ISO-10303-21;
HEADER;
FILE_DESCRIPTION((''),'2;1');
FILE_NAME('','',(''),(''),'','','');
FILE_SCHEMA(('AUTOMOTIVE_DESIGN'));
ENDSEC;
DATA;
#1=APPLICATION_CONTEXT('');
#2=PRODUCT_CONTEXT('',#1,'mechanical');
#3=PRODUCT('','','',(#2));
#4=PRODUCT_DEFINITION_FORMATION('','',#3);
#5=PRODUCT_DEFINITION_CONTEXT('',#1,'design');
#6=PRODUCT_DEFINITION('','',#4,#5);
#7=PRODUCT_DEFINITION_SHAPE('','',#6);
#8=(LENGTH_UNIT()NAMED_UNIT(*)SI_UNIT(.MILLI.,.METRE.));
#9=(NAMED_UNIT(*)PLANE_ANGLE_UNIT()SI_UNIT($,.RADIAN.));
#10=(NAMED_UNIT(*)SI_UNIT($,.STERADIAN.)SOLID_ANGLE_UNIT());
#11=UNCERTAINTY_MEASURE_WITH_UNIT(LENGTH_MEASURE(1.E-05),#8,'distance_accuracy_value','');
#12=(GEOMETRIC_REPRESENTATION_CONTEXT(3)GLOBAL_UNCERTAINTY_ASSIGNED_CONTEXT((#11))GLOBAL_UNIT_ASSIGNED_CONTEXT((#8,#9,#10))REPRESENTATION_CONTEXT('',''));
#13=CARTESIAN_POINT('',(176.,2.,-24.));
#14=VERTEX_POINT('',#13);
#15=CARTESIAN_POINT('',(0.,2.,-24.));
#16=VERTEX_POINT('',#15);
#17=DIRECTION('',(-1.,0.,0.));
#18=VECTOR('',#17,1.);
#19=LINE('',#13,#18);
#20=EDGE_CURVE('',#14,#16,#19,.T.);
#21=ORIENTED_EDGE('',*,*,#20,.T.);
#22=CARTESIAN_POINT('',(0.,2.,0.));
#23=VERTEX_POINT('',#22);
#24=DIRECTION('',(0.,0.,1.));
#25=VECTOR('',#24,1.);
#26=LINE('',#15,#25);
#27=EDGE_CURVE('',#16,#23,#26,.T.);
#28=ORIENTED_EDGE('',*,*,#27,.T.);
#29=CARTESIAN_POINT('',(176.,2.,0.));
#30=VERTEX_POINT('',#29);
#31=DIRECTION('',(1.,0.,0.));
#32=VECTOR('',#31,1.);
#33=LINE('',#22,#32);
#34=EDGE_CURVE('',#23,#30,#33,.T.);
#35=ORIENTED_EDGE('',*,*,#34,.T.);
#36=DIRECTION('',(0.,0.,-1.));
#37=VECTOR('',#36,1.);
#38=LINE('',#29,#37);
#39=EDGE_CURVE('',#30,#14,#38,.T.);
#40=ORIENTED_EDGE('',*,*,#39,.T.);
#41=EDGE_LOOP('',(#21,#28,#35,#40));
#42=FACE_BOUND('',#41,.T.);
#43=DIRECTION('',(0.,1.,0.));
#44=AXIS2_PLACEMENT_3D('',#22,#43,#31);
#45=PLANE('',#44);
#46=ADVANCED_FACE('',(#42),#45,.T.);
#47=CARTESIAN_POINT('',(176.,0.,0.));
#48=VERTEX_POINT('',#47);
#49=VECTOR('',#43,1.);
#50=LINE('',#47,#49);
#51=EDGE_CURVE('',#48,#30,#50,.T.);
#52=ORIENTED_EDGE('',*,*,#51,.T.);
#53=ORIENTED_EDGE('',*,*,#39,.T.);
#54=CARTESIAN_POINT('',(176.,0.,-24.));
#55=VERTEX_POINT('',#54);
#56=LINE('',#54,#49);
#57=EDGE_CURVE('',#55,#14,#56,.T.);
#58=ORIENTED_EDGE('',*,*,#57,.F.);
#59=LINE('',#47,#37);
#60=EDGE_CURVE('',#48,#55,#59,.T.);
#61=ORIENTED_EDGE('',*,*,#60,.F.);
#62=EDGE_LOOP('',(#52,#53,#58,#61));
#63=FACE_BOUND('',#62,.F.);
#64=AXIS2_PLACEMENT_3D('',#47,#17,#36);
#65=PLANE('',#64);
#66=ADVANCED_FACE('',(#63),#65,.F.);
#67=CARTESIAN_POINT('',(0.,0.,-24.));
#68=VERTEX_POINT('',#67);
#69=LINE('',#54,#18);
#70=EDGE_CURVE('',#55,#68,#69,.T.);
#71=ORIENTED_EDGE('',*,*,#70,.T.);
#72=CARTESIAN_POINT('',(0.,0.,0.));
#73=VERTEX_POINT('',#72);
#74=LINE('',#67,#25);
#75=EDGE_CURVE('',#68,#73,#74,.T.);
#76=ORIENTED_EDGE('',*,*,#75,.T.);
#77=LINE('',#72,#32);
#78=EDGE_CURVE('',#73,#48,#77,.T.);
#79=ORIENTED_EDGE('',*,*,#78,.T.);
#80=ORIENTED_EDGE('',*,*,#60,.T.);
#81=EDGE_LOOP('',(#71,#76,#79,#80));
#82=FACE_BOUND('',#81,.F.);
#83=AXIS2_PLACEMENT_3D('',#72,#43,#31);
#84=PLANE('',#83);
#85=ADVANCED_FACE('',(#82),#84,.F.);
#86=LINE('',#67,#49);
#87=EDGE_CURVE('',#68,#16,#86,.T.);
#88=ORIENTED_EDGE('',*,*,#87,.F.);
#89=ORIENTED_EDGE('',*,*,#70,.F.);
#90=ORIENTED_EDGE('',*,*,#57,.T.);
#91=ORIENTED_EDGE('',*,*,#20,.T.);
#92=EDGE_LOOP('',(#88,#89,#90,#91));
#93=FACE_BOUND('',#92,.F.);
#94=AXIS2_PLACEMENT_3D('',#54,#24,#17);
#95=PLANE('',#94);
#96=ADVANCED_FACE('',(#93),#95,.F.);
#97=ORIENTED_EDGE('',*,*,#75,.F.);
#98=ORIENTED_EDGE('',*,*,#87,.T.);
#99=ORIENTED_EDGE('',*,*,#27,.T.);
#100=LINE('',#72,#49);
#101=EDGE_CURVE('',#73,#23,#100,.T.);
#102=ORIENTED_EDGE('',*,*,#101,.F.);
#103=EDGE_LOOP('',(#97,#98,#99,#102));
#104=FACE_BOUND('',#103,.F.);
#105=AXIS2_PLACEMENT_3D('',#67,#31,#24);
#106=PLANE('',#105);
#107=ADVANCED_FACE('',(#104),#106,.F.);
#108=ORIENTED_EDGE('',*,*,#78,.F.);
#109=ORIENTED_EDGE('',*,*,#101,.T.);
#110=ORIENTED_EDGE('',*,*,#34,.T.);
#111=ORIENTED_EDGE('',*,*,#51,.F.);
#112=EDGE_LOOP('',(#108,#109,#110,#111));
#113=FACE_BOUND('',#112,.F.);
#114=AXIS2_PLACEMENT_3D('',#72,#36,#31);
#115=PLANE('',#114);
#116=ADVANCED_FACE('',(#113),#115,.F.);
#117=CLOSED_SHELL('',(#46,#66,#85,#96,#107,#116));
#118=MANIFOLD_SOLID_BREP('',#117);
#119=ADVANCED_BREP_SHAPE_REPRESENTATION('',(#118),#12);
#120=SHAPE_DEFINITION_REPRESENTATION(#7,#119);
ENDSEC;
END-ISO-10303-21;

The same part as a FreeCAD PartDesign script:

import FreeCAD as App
import Part
import Sketcher
from FreeCAD import Vector


def add_polygon(sketch, points):
    """Adds a closed chain of lines whose ends are joined by coincident constraints."""
    first, n = sketch.GeometryCount, len(points)
    for a, b in zip(points, points[1:] + points[:1]):
        sketch.addGeometry(Part.LineSegment(App.Vector(*a, 0), App.Vector(*b, 0)), False)
    for i in range(n):
        sketch.addConstraint(Sketcher.Constraint("Coincident", first + i, 2, first + (i + 1) % n, 1))

doc = App.newDocument("Part")
body = doc.addObject("PartDesign::Body", "Body")

sketch1 = body.newObject("Sketcher::SketchObject", "Sketch")
sketch1.AttachmentSupport = (doc.getObject("XZ_Plane"), [""])
sketch1.MapMode = "FlatFace"
add_polygon(sketch1, [(0, -24), (0, 0), (176, 0), (176, -24)])
sketch1.addConstraint([
    Sketcher.Constraint("Vertical", 0),
    Sketcher.Constraint("Horizontal", 1),
    Sketcher.Constraint("Vertical", 2),
    Sketcher.Constraint("Horizontal", 3),
    Sketcher.Constraint("Coincident", 0, 2, -1, 1),
    Sketcher.Constraint("DistanceX", 1, 1, 1, 2, 176.0),
    Sketcher.Constraint("DistanceY", 0, 1, 0, 2, 24.0),
])
pad1 = body.newObject("PartDesign::Pad", "Pad")
pad1.Profile = sketch1
pad1.Length = 2
pad1.Reversed = True

doc.recompute()
